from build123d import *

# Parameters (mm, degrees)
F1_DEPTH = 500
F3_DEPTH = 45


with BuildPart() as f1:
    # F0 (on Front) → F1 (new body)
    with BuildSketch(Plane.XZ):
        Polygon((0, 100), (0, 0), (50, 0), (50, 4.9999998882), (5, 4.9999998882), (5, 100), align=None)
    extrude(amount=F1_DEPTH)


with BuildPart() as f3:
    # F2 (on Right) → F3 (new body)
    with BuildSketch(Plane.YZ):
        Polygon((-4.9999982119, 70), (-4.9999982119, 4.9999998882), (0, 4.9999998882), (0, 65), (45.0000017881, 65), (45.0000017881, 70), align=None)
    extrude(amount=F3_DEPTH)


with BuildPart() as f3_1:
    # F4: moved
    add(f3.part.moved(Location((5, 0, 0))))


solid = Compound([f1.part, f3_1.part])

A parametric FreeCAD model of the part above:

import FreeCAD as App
import Part
import Sketcher
Q = App.Units.Quantity


def add_polygon(sketch, points):
    """Adds a closed chain of lines whose ends are joined by coincident constraints."""
    first, n = sketch.GeometryCount, len(points)
    for a, b in zip(points, points[1:] + points[:1]):
        sketch.addGeometry(Part.LineSegment(App.Vector(*a, 0), App.Vector(*b, 0)), False)
    for i in range(n):
        sketch.addConstraint(Sketcher.Constraint("Coincident", first + i, 2, first + (i + 1) % n, 1))

doc = App.newDocument("Part")
body = doc.addObject("PartDesign::Body", "Body")

sketch1 = body.newObject("Sketcher::SketchObject", "Sketch")
sketch1.AttachmentSupport = (doc.getObject("XZ_Plane"), [""])
sketch1.MapMode = "FlatFace"
add_polygon(sketch1, [(0, 100), (0, 0), (50, 0), (50, 5), (5, 5), (5, 100)])
sketch1.addConstraint([
    Sketcher.Constraint("Vertical", 0),
    Sketcher.Constraint("Horizontal", 1),
    Sketcher.Constraint("Vertical", 2),
    Sketcher.Constraint("Horizontal", 3),
    Sketcher.Constraint("Vertical", 4),
    Sketcher.Constraint("Horizontal", 5),
    Sketcher.Constraint("Coincident", 0, 2, -1, 1),
    Sketcher.Constraint("Equal", 5, 2),
    Sketcher.Constraint("DistanceX", 1, 1, 1, 2, Q("50 mm")),
    Sketcher.Constraint("DistanceX", 3, 2, 3, 1, Q("45 mm")),
    Sketcher.Constraint("DistanceY", 0, 2, 0, 1, Q("100 mm")),
])
pad1 = body.newObject("PartDesign::Pad", "Pad")
pad1.Profile = sketch1
pad1.Length = 500
body2 = doc.addObject("PartDesign::Body", "Body001")

sketch2 = body2.newObject("Sketcher::SketchObject", "Sketch001")
sketch2.AttachmentSupport = (doc.getObject("YZ_Plane001"), [""])
sketch2.MapMode = "FlatFace"
add_polygon(sketch2, [(-4.999998, 70), (-4.999998, 5), (0, 5), (0, 65), (45.000002, 65), (45.000002, 70)])
sketch2.addConstraint([
    Sketcher.Constraint("Vertical", 0),
    Sketcher.Constraint("Horizontal", 1),
    Sketcher.Constraint("Vertical", 2),
    Sketcher.Constraint("Horizontal", 3),
    Sketcher.Constraint("Vertical", 4),
    Sketcher.Constraint("Horizontal", 5),
    Sketcher.Constraint("PointOnObject", 1, 2, -2),
    Sketcher.Constraint("Equal", 1, 4),
    Sketcher.Constraint("DistanceX", 1, 1, 1, 2, Q("4.999998 mm")),
    Sketcher.Constraint("DistanceX", 3, 1, 3, 2, Q("45.000002 mm")),
    Sketcher.Constraint("DistanceY", 0, 2, 0, 1, Q("65 mm")),
    Sketcher.Constraint("DistanceY", -1, 1, 0, 2, Q("5 mm")),
])
pad2 = body2.newObject("PartDesign::Pad", "Pad001")
pad2.Profile = sketch2
pad2.Length = 45
body3 = doc.addObject("PartDesign::Body", "Body002")
doc.recompute()

body2.Placement = App.Placement(App.Vector(5, 0, 0), App.Rotation(App.Vector(0, 0, 1), 0))
boolean = body3.newObject("PartDesign::Boolean", "Boolean")
boolean.Type = "Fuse"
boolean.addObjects([body2])

doc.recompute()
